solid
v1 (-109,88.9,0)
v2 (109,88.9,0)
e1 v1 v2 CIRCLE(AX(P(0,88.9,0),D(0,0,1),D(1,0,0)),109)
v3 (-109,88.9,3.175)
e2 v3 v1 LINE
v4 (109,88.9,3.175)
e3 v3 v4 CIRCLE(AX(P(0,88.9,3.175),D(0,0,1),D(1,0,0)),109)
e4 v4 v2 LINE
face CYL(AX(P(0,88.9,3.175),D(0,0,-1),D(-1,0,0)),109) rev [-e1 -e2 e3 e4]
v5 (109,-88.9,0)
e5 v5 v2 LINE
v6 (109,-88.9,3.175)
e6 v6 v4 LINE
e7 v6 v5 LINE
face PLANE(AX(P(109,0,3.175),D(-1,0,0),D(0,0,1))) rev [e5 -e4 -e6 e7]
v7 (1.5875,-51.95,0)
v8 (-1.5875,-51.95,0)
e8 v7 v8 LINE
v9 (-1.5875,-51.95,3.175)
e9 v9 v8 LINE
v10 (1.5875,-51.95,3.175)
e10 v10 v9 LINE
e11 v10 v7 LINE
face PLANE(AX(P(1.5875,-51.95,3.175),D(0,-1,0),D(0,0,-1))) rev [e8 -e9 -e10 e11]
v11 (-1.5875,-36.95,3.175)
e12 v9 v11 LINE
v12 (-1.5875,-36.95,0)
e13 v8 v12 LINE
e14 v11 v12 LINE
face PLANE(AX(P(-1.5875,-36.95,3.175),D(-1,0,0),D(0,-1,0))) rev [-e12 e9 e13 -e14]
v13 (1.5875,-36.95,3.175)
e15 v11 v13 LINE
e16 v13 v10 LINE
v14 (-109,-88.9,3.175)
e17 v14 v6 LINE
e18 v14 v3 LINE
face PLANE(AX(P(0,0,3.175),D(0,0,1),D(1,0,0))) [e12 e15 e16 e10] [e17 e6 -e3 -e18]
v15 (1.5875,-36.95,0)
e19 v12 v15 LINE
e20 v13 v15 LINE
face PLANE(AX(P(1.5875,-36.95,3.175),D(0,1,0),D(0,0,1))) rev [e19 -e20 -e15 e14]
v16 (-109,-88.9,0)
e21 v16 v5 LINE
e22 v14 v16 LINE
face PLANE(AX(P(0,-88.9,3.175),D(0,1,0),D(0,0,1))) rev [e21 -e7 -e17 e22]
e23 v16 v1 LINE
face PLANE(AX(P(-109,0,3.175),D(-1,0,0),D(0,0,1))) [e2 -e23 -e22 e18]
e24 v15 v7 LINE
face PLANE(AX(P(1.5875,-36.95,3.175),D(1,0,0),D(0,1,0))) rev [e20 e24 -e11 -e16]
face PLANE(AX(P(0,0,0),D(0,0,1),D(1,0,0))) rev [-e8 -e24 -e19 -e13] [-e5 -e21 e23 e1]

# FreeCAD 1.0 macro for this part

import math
import FreeCAD as App
import Part
import Sketcher

V = App.Vector
Q = App.Units.Quantity

doc = App.newDocument("Part")
body = doc.addObject("PartDesign::Body", "Body")

# Sketch on XY plane
sketch1 = doc.addObject("Sketcher::SketchObject", "Sketch")
body.addObject(sketch1)
sketch1.AttachmentSupport = (doc.XY_Plane, [""])
sketch1.MapMode = "FlatFace"
sketch1.addGeometry([
    Part.ArcOfCircle(Part.Circle(V(0, 89, 0), V(0, 0, 1), 109), math.radians(180), math.radians(360)),
    Part.LineSegment(V(-109, 89, 0), V(-109, -89, 0)),
    Part.LineSegment(V(-109, -89, 0), V(109, -89, 0)),
    Part.LineSegment(V(109, -89, 0), V(109, 89, 0)),
], False)
sketch1.addConstraint([
    Sketcher.Constraint("Tangent", 0, 1, 1, 1),
    Sketcher.Constraint("Coincident", 1, 2, 2, 1),
    Sketcher.Constraint("Coincident", 2, 2, 3, 1),
    Sketcher.Constraint("Tangent", 3, 2, 0, 2),
    Sketcher.Constraint("Vertical", 1),
    Sketcher.Constraint("Horizontal", 2),
    Sketcher.Constraint("Vertical", 3),
    Sketcher.Constraint("Symmetric", 0, 1, 2, 2, -1, 1),
    Sketcher.Constraint("Radius", 0, Q("109 mm")),
    Sketcher.Constraint("DistanceY", 1, 2, 1, 1, Q("177.8 mm")),
])
pad1 = doc.addObject("PartDesign::Pad", "Pad")
body.addObject(pad1)
pad1.Profile = sketch1
pad1.Length = 3.175

# Sketch on XY plane
sketch2 = doc.addObject("Sketcher::SketchObject", "Sketch001")
body.addObject(sketch2)
sketch2.AttachmentSupport = (doc.XY_Plane, [""])
sketch2.MapMode = "FlatFace"
sketch2.addGeometry([
    Part.LineSegment(V(1.6, -37, 0), V(1.6, -52, 0)),
    Part.LineSegment(V(1.6, -52, 0), V(-1.6, -52, 0)),
    Part.LineSegment(V(-1.6, -52, 0), V(-1.6, -37, 0)),
    Part.LineSegment(V(-1.6, -37, 0), V(1.6, -37, 0)),
], False)
sketch2.addConstraint([
    Sketcher.Constraint("Coincident", 0, 2, 1, 1),
    Sketcher.Constraint("Coincident", 1, 2, 2, 1),
    Sketcher.Constraint("Coincident", 2, 2, 3, 1),
    Sketcher.Constraint("Coincident", 3, 2, 0, 1),
    Sketcher.Constraint("Vertical", 0),
    Sketcher.Constraint("Horizontal", 1),
    Sketcher.Constraint("Vertical", 2),
    Sketcher.Constraint("Horizontal", 3),
    Sketcher.Constraint("DistanceY", 0, 2, 0, 1, Q("15 mm")),
    Sketcher.Constraint("DistanceX", 1, 2, 1, 1, Q("3.175 mm")),
    Sketcher.Constraint("DistanceY", 0, 2, -1, 1, Q("51.95 mm")),
    Sketcher.Constraint("DistanceX", -1, 1, 0, 2, Q("1.5875 mm")),
])
pocket1 = doc.addObject("PartDesign::Pocket", "Pocket")
body.addObject(pocket1)
pocket1.Profile = sketch2
pocket1.Length = 3.175
pocket1.Reversed = True

doc.recompute()
